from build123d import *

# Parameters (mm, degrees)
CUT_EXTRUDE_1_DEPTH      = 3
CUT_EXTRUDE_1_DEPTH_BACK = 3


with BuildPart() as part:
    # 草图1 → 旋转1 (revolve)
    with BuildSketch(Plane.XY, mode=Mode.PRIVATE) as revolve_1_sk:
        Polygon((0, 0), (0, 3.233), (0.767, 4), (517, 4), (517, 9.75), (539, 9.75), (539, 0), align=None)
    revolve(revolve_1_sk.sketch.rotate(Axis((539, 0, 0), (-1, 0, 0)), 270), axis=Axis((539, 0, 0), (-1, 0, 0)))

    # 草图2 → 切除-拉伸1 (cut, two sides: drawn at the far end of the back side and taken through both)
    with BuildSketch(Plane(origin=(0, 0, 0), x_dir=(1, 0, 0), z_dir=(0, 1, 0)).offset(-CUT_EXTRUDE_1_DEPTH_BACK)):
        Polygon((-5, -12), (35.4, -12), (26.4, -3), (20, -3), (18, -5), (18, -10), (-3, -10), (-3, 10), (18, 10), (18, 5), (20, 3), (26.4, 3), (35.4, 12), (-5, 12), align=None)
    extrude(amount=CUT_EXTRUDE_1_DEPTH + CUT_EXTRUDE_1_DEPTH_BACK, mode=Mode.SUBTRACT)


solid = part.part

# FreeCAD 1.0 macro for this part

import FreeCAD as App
import Part
import Sketcher
Q = App.Units.Quantity

doc = App.newDocument("Part")
body = doc.addObject("PartDesign::Body", "Body")

# Sketch on XY plane
sketch1 = body.newObject("Sketcher::SketchObject", "Sketch")
sketch1.AttachmentSupport = (doc.getObject("XY_Plane"), [""])
sketch1.MapMode = "FlatFace"
sketch1.addGeometry([
    Part.LineSegment(App.Vector(0, 3.233, 0), App.Vector(0, 0, 0)),  # 0
    Part.LineSegment(App.Vector(0, 0, 0), App.Vector(539, 0, 0)),  # 1
    Part.LineSegment(App.Vector(539, 0, 0), App.Vector(539, 9.75, 0)),  # 2
    Part.LineSegment(App.Vector(539, 9.75, 0), App.Vector(517, 9.75, 0)),  # 3
    Part.LineSegment(App.Vector(517, 9.75, 0), App.Vector(517, 4, 0)),  # 4
    Part.LineSegment(App.Vector(517, 4, 0), App.Vector(0.767, 4, 0)),  # 5
    Part.LineSegment(App.Vector(0.767, 4, 0), App.Vector(0, 3.233, 0)),  # 6
], False)
sketch1.addConstraint([
    Sketcher.Constraint("Coincident", 0, 2, 1, 1),
    Sketcher.Constraint("Coincident", 1, 2, 2, 1),
    Sketcher.Constraint("Coincident", 2, 2, 3, 1),
    Sketcher.Constraint("Coincident", 3, 2, 4, 1),
    Sketcher.Constraint("Coincident", 4, 2, 5, 1),
    Sketcher.Constraint("Coincident", 5, 2, 6, 1),
    Sketcher.Constraint("Coincident", 6, 2, 0, 1),
    Sketcher.Constraint("Vertical", 0),
    Sketcher.Constraint("Horizontal", 1),
    Sketcher.Constraint("Vertical", 2),
    Sketcher.Constraint("Horizontal", 3),
    Sketcher.Constraint("Vertical", 4),
    Sketcher.Constraint("Horizontal", 5),
    Sketcher.Constraint("Coincident", 0, 2, -1, 1),
    Sketcher.Constraint("DistanceX", 1, 1, 1, 2, 539.0),
    Sketcher.Constraint("DistanceX", 3, 2, 3, 1, 22.0),
    Sketcher.Constraint("Angle", 6, Q("-135 deg")),
    Sketcher.Constraint("DistanceY", -1, 1, 4, 2, 4.0),
    Sketcher.Constraint("DistanceY", 2, 1, 2, 2, 9.75),
    Sketcher.Constraint("DistanceX", 5, 2, 5, 1, 516.233),
])
revolution = body.newObject("PartDesign::Revolution", "Revolution")
revolution.Profile = sketch1
revolution.ReferenceAxis = (sketch1, ["H_Axis"])
revolution.Angle = 360

# Sketch on XZ plane
sketch2 = body.newObject("Sketcher::SketchObject", "Sketch001")
sketch2.AttachmentSupport = (doc.getObject("XZ_Plane"), [""])
sketch2.MapMode = "FlatFace"
sketch2.addGeometry([
    Part.LineSegment(App.Vector(-5, 12, 0), App.Vector(35.4, 12, 0)),  # 0
    Part.LineSegment(App.Vector(35.4, 12, 0), App.Vector(26.4, 3, 0)),  # 1
    Part.LineSegment(App.Vector(26.4, 3, 0), App.Vector(20, 3, 0)),  # 2
    Part.LineSegment(App.Vector(20, 3, 0), App.Vector(18, 5, 0)),  # 3
    Part.LineSegment(App.Vector(18, 5, 0), App.Vector(18, 10, 0)),  # 4
    Part.LineSegment(App.Vector(18, 10, 0), App.Vector(-3, 10, 0)),  # 5
    Part.LineSegment(App.Vector(-3, 10, 0), App.Vector(-3, -10, 0)),  # 6
    Part.LineSegment(App.Vector(-3, -10, 0), App.Vector(18, -10, 0)),  # 7
    Part.LineSegment(App.Vector(18, -10, 0), App.Vector(18, -5, 0)),  # 8
    Part.LineSegment(App.Vector(18, -5, 0), App.Vector(20, -3, 0)),  # 9
    Part.LineSegment(App.Vector(20, -3, 0), App.Vector(26.4, -3, 0)),  # 10
    Part.LineSegment(App.Vector(26.4, -3, 0), App.Vector(35.4, -12, 0)),  # 11
    Part.LineSegment(App.Vector(35.4, -12, 0), App.Vector(-5, -12, 0)),  # 12
    Part.LineSegment(App.Vector(-5, -12, 0), App.Vector(-5, 12, 0)),  # 13
], False)
sketch2.addConstraint([
    Sketcher.Constraint("Coincident", 0, 2, 1, 1),
    Sketcher.Constraint("Coincident", 1, 2, 2, 1),
    Sketcher.Constraint("Coincident", 2, 2, 3, 1),
    Sketcher.Constraint("Coincident", 3, 2, 4, 1),
    Sketcher.Constraint("Coincident", 4, 2, 5, 1),
    Sketcher.Constraint("Coincident", 5, 2, 6, 1),
    Sketcher.Constraint("Coincident", 6, 2, 7, 1),
    Sketcher.Constraint("Coincident", 7, 2, 8, 1),
    Sketcher.Constraint("Coincident", 8, 2, 9, 1),
    Sketcher.Constraint("Coincident", 9, 2, 10, 1),
    Sketcher.Constraint("Coincident", 10, 2, 11, 1),
    Sketcher.Constraint("Coincident", 11, 2, 12, 1),
    Sketcher.Constraint("Coincident", 12, 2, 13, 1),
    Sketcher.Constraint("Coincident", 13, 2, 0, 1),
    Sketcher.Constraint("Horizontal", 0),
    Sketcher.Constraint("Horizontal", 2),
    Sketcher.Constraint("Vertical", 4),
    Sketcher.Constraint("Horizontal", 5),
    Sketcher.Constraint("Vertical", 6),
    Sketcher.Constraint("Horizontal", 7),
    Sketcher.Constraint("Vertical", 8),
    Sketcher.Constraint("Horizontal", 10),
    Sketcher.Constraint("Horizontal", 12),
    Sketcher.Constraint("Vertical", 13),
    Sketcher.Constraint("Symmetric", 4, 2, 7, 2, -1),
    Sketcher.Constraint("Symmetric", 2, 2, 9, 2, -1),
    Sketcher.Constraint("Symmetric", 0, 2, 11, 2, -1),
    Sketcher.Constraint("Perpendicular", 1, 3),
    Sketcher.Constraint("Perpendicular", 3, 9),
    Sketcher.Constraint("Perpendicular", 9, 11),
    Sketcher.Constraint("Vertical", 1, 2, 10, 2),
    Sketcher.Constraint("DistanceX", 5, 2, 5, 1, 21.0),
    Sketcher.Constraint("DistanceY", 4, 1, 4, 2, 5.0),
    Sketcher.Constraint("DistanceY", 6, 2, 6, 1, 20.0),
    Sketcher.Constraint("DistanceY", 13, 1, 13, 2, 24.0),
    Sketcher.Constraint("DistanceX", 0, 1, 0, 2, 40.4),
    Sketcher.Constraint("DistanceX", 2, 2, 2, 1, 6.4),
    Sketcher.Constraint("DistanceY", -1, 1, 1, 2, 3.0),
    Sketcher.Constraint("DistanceX", -1, 1, 2, 2, 20.0),
])
pocket1 = body.newObject("PartDesign::Pocket", "Pocket")
pocket1.Profile = sketch2
pocket1.Type = "ThroughAll"
pocket1.Midplane = True

doc.recompute()
